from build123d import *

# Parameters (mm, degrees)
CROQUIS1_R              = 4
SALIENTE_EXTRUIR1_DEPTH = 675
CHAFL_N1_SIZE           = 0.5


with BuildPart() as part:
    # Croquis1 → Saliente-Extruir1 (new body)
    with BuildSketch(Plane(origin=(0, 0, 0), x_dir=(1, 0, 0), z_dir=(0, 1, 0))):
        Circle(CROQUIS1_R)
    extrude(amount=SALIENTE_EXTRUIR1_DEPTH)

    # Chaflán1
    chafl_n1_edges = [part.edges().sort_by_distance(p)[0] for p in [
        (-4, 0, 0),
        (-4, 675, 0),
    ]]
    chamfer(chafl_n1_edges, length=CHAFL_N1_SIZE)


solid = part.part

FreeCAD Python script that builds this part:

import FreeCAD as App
import Part
import Sketcher
Q = App.Units.Quantity


def edges_at(feature, points):
    """Names of the edges that pass closest to the given points."""
    edges = feature.Shape.Edges
    near = lambda p: min(range(len(edges)), key=lambda i: edges[i].distToShape(Part.Vertex(*p))[0])
    return sorted({f"Edge{near(p) + 1}" for p in points})

doc = App.newDocument("Part")
body = doc.addObject("PartDesign::Body", "Body")

# Sketch on XZ plane
sketch1 = body.newObject("Sketcher::SketchObject", "Sketch")
sketch1.AttachmentSupport = (doc.getObject("XZ_Plane"), [""])
sketch1.MapMode = "FlatFace"
sketch1.addGeometry(Part.Circle(App.Vector(0, 0, 0), App.Vector(0, 0, 1), 4), False)
sketch1.addConstraint([
    Sketcher.Constraint("Coincident", 0, 3, -1, 1),
    Sketcher.Constraint("Diameter", 0, Q("8 mm")),
])
pad1 = body.newObject("PartDesign::Pad", "Pad")
pad1.Profile = sketch1
pad1.Length = 675
pad1.Reversed = True
doc.recompute()

chamfer = body.newObject("PartDesign::Chamfer", "Chamfer")
chamfer.Base = (pad1, edges_at(pad1, [(-4, 0, 0), (-4, 675, 0)]))
chamfer.Size = 0.5

doc.recompute()
